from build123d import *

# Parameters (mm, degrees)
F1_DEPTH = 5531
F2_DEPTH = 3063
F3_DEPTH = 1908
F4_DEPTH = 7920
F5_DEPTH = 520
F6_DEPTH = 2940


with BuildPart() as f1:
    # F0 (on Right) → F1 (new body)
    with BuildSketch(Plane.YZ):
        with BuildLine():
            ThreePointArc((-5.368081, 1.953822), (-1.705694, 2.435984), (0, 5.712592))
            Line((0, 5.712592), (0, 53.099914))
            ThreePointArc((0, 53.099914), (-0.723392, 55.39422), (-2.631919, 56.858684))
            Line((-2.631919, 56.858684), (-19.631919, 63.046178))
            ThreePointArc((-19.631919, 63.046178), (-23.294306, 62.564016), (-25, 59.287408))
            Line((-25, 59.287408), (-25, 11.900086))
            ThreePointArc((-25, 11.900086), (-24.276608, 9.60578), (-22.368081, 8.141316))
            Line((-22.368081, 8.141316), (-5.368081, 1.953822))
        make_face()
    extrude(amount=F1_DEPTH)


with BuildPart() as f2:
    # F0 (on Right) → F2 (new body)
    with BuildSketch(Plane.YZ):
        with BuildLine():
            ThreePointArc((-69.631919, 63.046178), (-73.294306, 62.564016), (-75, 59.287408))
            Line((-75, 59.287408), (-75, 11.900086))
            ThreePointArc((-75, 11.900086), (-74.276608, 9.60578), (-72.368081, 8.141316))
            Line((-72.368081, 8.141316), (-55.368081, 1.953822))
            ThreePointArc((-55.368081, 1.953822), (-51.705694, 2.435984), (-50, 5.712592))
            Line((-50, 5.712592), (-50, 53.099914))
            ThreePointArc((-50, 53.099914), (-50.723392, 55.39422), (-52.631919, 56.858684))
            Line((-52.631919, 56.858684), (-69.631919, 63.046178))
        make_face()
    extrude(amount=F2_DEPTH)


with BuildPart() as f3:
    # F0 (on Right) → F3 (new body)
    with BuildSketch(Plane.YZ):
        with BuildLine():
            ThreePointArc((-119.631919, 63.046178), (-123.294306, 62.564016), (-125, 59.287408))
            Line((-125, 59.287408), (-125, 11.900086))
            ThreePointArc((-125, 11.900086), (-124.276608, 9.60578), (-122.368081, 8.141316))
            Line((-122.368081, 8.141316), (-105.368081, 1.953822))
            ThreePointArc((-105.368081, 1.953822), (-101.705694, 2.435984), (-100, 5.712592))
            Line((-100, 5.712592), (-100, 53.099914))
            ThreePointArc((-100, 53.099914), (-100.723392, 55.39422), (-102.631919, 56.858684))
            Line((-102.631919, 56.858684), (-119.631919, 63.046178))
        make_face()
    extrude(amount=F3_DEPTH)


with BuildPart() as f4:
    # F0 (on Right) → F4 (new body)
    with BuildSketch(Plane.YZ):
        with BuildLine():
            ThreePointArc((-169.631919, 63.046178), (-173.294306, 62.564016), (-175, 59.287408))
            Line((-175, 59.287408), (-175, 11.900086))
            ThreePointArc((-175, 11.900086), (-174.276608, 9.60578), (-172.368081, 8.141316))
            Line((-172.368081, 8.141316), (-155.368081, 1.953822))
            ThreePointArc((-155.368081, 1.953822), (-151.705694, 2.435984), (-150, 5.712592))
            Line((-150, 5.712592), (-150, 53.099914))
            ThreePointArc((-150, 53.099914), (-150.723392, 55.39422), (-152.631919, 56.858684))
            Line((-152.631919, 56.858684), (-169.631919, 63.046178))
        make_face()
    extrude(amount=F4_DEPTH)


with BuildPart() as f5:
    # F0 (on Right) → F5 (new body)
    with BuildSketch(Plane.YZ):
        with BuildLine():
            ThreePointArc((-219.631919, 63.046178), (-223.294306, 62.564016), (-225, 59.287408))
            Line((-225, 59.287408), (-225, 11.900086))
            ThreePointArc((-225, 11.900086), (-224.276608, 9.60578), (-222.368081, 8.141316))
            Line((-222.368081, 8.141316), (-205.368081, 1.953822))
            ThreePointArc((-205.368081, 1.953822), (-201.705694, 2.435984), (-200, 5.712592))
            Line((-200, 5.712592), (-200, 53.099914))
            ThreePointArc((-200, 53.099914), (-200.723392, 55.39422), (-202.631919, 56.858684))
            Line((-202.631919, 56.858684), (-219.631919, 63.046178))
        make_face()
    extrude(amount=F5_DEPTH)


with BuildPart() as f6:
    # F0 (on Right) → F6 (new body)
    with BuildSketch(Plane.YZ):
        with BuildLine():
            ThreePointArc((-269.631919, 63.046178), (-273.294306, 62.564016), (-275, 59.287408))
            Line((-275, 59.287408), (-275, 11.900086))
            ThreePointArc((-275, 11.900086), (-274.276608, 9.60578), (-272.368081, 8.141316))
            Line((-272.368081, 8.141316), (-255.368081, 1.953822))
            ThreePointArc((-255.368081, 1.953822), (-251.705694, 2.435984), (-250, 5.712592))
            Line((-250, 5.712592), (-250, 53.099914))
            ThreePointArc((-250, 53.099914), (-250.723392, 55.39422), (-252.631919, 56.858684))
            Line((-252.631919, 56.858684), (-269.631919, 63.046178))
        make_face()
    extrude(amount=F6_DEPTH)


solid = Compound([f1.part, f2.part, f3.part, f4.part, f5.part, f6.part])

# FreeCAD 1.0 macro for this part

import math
import FreeCAD as App
import Part
import Sketcher
Q = App.Units.Quantity

doc = App.newDocument("Part")
params = doc.addObject("Spreadsheet::Sheet", "Params")
for row, (alias, value) in enumerate([
    ("sketch1_radius", "4 mm"),
    ("pad1_length", "5531 mm"),
    ("sketch2_radius", "4 mm"),
    ("pad2_length", "3063 mm"),
    ("sketch3_radius", "4 mm"),
    ("pad3_length", "1908 mm"),
    ("sketch4_radius", "4 mm"),
    ("pad4_length", "7920 mm"),
    ("sketch5_radius", "4 mm"),
    ("pad5_length", "520 mm"),
    ("sketch6_radius", "4 mm"),
    ("pad6_length", "2940 mm"),
], start=1):
    params.set(f"A{row}", alias)
    params.set(f"B{row}", "=" + value)
    params.setAlias(f"B{row}", alias)

body = doc.addObject("PartDesign::Body", "Body")

# Sketch on YZ plane
sketch1 = doc.addObject("Sketcher::SketchObject", "Sketch")
body.addObject(sketch1)
sketch1.AttachmentSupport = (doc.YZ_Plane, [""])
sketch1.MapMode = "FlatFace"
sketch1.addGeometry([
    Part.ArcOfCircle(Part.Circle(App.Vector(-4, 5.7, 0), App.Vector(0, 0, 1), 4), math.radians(-110), math.radians(0)),  # 0
    Part.LineSegment(App.Vector(0, 5.7, 0), App.Vector(0, 53.1, 0)),  # 1
    Part.ArcOfCircle(Part.Circle(App.Vector(-4, 53.1, 0), App.Vector(0, 0, 1), 4), math.radians(0), math.radians(70)),  # 2
    Part.LineSegment(App.Vector(-2.6, 56.9, 0), App.Vector(-19.6, 63, 0)),  # 3
    Part.ArcOfCircle(Part.Circle(App.Vector(-21, 59.3, 0), App.Vector(0, 0, 1), 4), math.radians(70), math.radians(180)),  # 4
    Part.LineSegment(App.Vector(-25, 59.3, 0), App.Vector(-25, 11.9, 0)),  # 5
    Part.ArcOfCircle(Part.Circle(App.Vector(-21, 11.9, 0), App.Vector(0, 0, 1), 4), math.radians(180), math.radians(250)),  # 6
    Part.LineSegment(App.Vector(-22.4, 8.1, 0), App.Vector(-5.4, 2, 0)),  # 7
], False)
sketch1.addConstraint([
    Sketcher.Constraint("Tangent", 0, 2, 1, 1),
    Sketcher.Constraint("Tangent", 1, 2, 2, 1),
    Sketcher.Constraint("Tangent", 2, 2, 3, 1),
    Sketcher.Constraint("Tangent", 3, 2, 4, 1),
    Sketcher.Constraint("Tangent", 4, 2, 5, 1),
    Sketcher.Constraint("Tangent", 5, 2, 6, 1),
    Sketcher.Constraint("Tangent", 6, 2, 7, 1),
    Sketcher.Constraint("Tangent", 7, 2, 0, 1),
    Sketcher.Constraint("Vertical", 1),
    Sketcher.Constraint("Vertical", 5),
    Sketcher.Constraint("Equal", 0, 2),
    Sketcher.Constraint("Equal", 2, 4),
    Sketcher.Constraint("Equal", 4, 6),
    Sketcher.Constraint("PointOnObject", 0, 2, -2),
    Sketcher.Constraint("Parallel", 3, 7),
    Sketcher.Constraint("Radius", 0, Q("4 mm")),
    Sketcher.Constraint("Angle", 3, Q("160 deg")),
    Sketcher.Constraint("DistanceX", 4, 3, -1, 1, Q("21 mm")),
    Sketcher.Constraint("DistanceY", 1, 1, 1, 2, Q("47.387322 mm")),
    Sketcher.Constraint("DistanceY", -1, 1, 0, 3, Q("5.712592 mm")),
])
sketch1.setExpression("Constraints[15]", "Params.sketch1_radius")
pad1 = doc.addObject("PartDesign::Pad", "Pad")
body.addObject(pad1)
pad1.Profile = sketch1
pad1.setExpression("Length", "Params.pad1_length")
body2 = doc.addObject("PartDesign::Body", "Body001")

# Sketch on YZ plane
sketch2 = doc.addObject("Sketcher::SketchObject", "Sketch001")
body2.addObject(sketch2)
sketch2.AttachmentSupport = (doc.getObject("YZ_Plane001"), [""])
sketch2.MapMode = "FlatFace"
sketch2.addGeometry([
    Part.ArcOfCircle(Part.Circle(App.Vector(-71, 59.3, 0), App.Vector(0, 0, 1), 4), math.radians(70), math.radians(180)),  # 0
    Part.LineSegment(App.Vector(-75, 59.3, 0), App.Vector(-75, 11.9, 0)),  # 1
    Part.ArcOfCircle(Part.Circle(App.Vector(-71, 11.9, 0), App.Vector(0, 0, 1), 4), math.radians(180), math.radians(250)),  # 2
    Part.LineSegment(App.Vector(-72.4, 8.1, 0), App.Vector(-55.4, 2, 0)),  # 3
    Part.ArcOfCircle(Part.Circle(App.Vector(-54, 5.7, 0), App.Vector(0, 0, 1), 4), math.radians(-110), math.radians(0)),  # 4
    Part.LineSegment(App.Vector(-50, 5.7, 0), App.Vector(-50, 53.1, 0)),  # 5
    Part.ArcOfCircle(Part.Circle(App.Vector(-54, 53.1, 0), App.Vector(0, 0, 1), 4), math.radians(0), math.radians(70)),  # 6
    Part.LineSegment(App.Vector(-52.6, 56.9, 0), App.Vector(-69.6, 63, 0)),  # 7
], False)
sketch2.addConstraint([
    Sketcher.Constraint("Tangent", 0, 2, 1, 1),
    Sketcher.Constraint("Tangent", 1, 2, 2, 1),
    Sketcher.Constraint("Tangent", 2, 2, 3, 1),
    Sketcher.Constraint("Tangent", 3, 2, 4, 1),
    Sketcher.Constraint("Tangent", 4, 2, 5, 1),
    Sketcher.Constraint("Tangent", 5, 2, 6, 1),
    Sketcher.Constraint("Tangent", 6, 2, 7, 1),
    Sketcher.Constraint("Tangent", 7, 2, 0, 1),
    Sketcher.Constraint("Vertical", 1),
    Sketcher.Constraint("Vertical", 5),
    Sketcher.Constraint("Equal", 0, 2),
    Sketcher.Constraint("Equal", 2, 4),
    Sketcher.Constraint("Equal", 4, 6),
    Sketcher.Constraint("Parallel", 3, 7),
    Sketcher.Constraint("Radius", 0, Q("4 mm")),
    Sketcher.Constraint("Angle", 3, Q("-20 deg")),
    Sketcher.Constraint("DistanceX", 0, 3, -1, 1, Q("71 mm")),
    Sketcher.Constraint("DistanceX", 4, 3, -1, 1, Q("54 mm")),
    Sketcher.Constraint("DistanceY", 1, 2, 1, 1, Q("47.387322 mm")),
    Sketcher.Constraint("DistanceY", -1, 1, 0, 3, Q("59.287408 mm")),
])
sketch2.setExpression("Constraints[14]", "Params.sketch2_radius")
pad2 = doc.addObject("PartDesign::Pad", "Pad001")
body2.addObject(pad2)
pad2.Profile = sketch2
pad2.setExpression("Length", "Params.pad2_length")
body3 = doc.addObject("PartDesign::Body", "Body002")

# Sketch on YZ plane
sketch3 = doc.addObject("Sketcher::SketchObject", "Sketch002")
body3.addObject(sketch3)
sketch3.AttachmentSupport = (doc.getObject("YZ_Plane002"), [""])
sketch3.MapMode = "FlatFace"
sketch3.addGeometry([
    Part.ArcOfCircle(Part.Circle(App.Vector(-121, 59.3, 0), App.Vector(0, 0, 1), 4), math.radians(70), math.radians(180)),  # 0
    Part.LineSegment(App.Vector(-125, 59.3, 0), App.Vector(-125, 11.9, 0)),  # 1
    Part.ArcOfCircle(Part.Circle(App.Vector(-121, 11.9, 0), App.Vector(0, 0, 1), 4), math.radians(180), math.radians(250)),  # 2
    Part.LineSegment(App.Vector(-122.4, 8.1, 0), App.Vector(-105.4, 2, 0)),  # 3
    Part.ArcOfCircle(Part.Circle(App.Vector(-104, 5.7, 0), App.Vector(0, 0, 1), 4), math.radians(-110), math.radians(0)),  # 4
    Part.LineSegment(App.Vector(-100, 5.7, 0), App.Vector(-100, 53.1, 0)),  # 5
    Part.ArcOfCircle(Part.Circle(App.Vector(-104, 53.1, 0), App.Vector(0, 0, 1), 4), math.radians(0), math.radians(70)),  # 6
    Part.LineSegment(App.Vector(-102.6, 56.9, 0), App.Vector(-119.6, 63, 0)),  # 7
], False)
sketch3.addConstraint([
    Sketcher.Constraint("Tangent", 0, 2, 1, 1),
    Sketcher.Constraint("Tangent", 1, 2, 2, 1),
    Sketcher.Constraint("Tangent", 2, 2, 3, 1),
    Sketcher.Constraint("Tangent", 3, 2, 4, 1),
    Sketcher.Constraint("Tangent", 4, 2, 5, 1),
    Sketcher.Constraint("Tangent", 5, 2, 6, 1),
    Sketcher.Constraint("Tangent", 6, 2, 7, 1),
    Sketcher.Constraint("Tangent", 7, 2, 0, 1),
    Sketcher.Constraint("Vertical", 1),
    Sketcher.Constraint("Vertical", 5),
    Sketcher.Constraint("Equal", 0, 2),
    Sketcher.Constraint("Equal", 2, 4),
    Sketcher.Constraint("Equal", 4, 6),
    Sketcher.Constraint("Parallel", 3, 7),
    Sketcher.Constraint("Radius", 0, Q("4 mm")),
    Sketcher.Constraint("Angle", 3, Q("-20 deg")),
    Sketcher.Constraint("DistanceX", 0, 3, -1, 1, Q("121 mm")),
    Sketcher.Constraint("DistanceX", 4, 3, -1, 1, Q("104 mm")),
    Sketcher.Constraint("DistanceY", 1, 2, 1, 1, Q("47.387322 mm")),
    Sketcher.Constraint("DistanceY", -1, 1, 0, 3, Q("59.287408 mm")),
])
sketch3.setExpression("Constraints[14]", "Params.sketch3_radius")
pad3 = doc.addObject("PartDesign::Pad", "Pad002")
body3.addObject(pad3)
pad3.Profile = sketch3
pad3.setExpression("Length", "Params.pad3_length")
body4 = doc.addObject("PartDesign::Body", "Body003")

# Sketch on YZ plane
sketch4 = doc.addObject("Sketcher::SketchObject", "Sketch003")
body4.addObject(sketch4)
sketch4.AttachmentSupport = (doc.getObject("YZ_Plane003"), [""])
sketch4.MapMode = "FlatFace"
sketch4.addGeometry([
    Part.ArcOfCircle(Part.Circle(App.Vector(-171, 59.3, 0), App.Vector(0, 0, 1), 4), math.radians(70), math.radians(180)),  # 0
    Part.LineSegment(App.Vector(-175, 59.3, 0), App.Vector(-175, 11.9, 0)),  # 1
    Part.ArcOfCircle(Part.Circle(App.Vector(-171, 11.9, 0), App.Vector(0, 0, 1), 4), math.radians(180), math.radians(250)),  # 2
    Part.LineSegment(App.Vector(-172.4, 8.1, 0), App.Vector(-155.4, 2, 0)),  # 3
    Part.ArcOfCircle(Part.Circle(App.Vector(-154, 5.7, 0), App.Vector(0, 0, 1), 4), math.radians(-110), math.radians(0)),  # 4
    Part.LineSegment(App.Vector(-150, 5.7, 0), App.Vector(-150, 53.1, 0)),  # 5
    Part.ArcOfCircle(Part.Circle(App.Vector(-154, 53.1, 0), App.Vector(0, 0, 1), 4), math.radians(0), math.radians(70)),  # 6
    Part.LineSegment(App.Vector(-152.6, 56.9, 0), App.Vector(-169.6, 63, 0)),  # 7
], False)
sketch4.addConstraint([
    Sketcher.Constraint("Tangent", 0, 2, 1, 1),
    Sketcher.Constraint("Tangent", 1, 2, 2, 1),
    Sketcher.Constraint("Tangent", 2, 2, 3, 1),
    Sketcher.Constraint("Tangent", 3, 2, 4, 1),
    Sketcher.Constraint("Tangent", 4, 2, 5, 1),
    Sketcher.Constraint("Tangent", 5, 2, 6, 1),
    Sketcher.Constraint("Tangent", 6, 2, 7, 1),
    Sketcher.Constraint("Tangent", 7, 2, 0, 1),
    Sketcher.Constraint("Vertical", 1),
    Sketcher.Constraint("Vertical", 5),
    Sketcher.Constraint("Equal", 0, 2),
    Sketcher.Constraint("Equal", 2, 4),
    Sketcher.Constraint("Equal", 4, 6),
    Sketcher.Constraint("Parallel", 3, 7),
    Sketcher.Constraint("Radius", 0, Q("4 mm")),
    Sketcher.Constraint("Angle", 3, Q("-20 deg")),
    Sketcher.Constraint("DistanceX", 0, 3, -1, 1, Q("171 mm")),
    Sketcher.Constraint("DistanceX", 4, 3, -1, 1, Q("154 mm")),
    Sketcher.Constraint("DistanceY", 1, 2, 1, 1, Q("47.387322 mm")),
    Sketcher.Constraint("DistanceY", -1, 1, 0, 3, Q("59.287408 mm")),
])
sketch4.setExpression("Constraints[14]", "Params.sketch4_radius")
pad4 = doc.addObject("PartDesign::Pad", "Pad003")
body4.addObject(pad4)
pad4.Profile = sketch4
pad4.setExpression("Length", "Params.pad4_length")
body5 = doc.addObject("PartDesign::Body", "Body004")

# Sketch on YZ plane
sketch5 = doc.addObject("Sketcher::SketchObject", "Sketch004")
body5.addObject(sketch5)
sketch5.AttachmentSupport = (doc.getObject("YZ_Plane004"), [""])
sketch5.MapMode = "FlatFace"
sketch5.addGeometry([
    Part.ArcOfCircle(Part.Circle(App.Vector(-221, 59.3, 0), App.Vector(0, 0, 1), 4), math.radians(70), math.radians(180)),  # 0
    Part.LineSegment(App.Vector(-225, 59.3, 0), App.Vector(-225, 11.9, 0)),  # 1
    Part.ArcOfCircle(Part.Circle(App.Vector(-221, 11.9, 0), App.Vector(0, 0, 1), 4), math.radians(180), math.radians(250)),  # 2
    Part.LineSegment(App.Vector(-222.4, 8.1, 0), App.Vector(-205.4, 2, 0)),  # 3
    Part.ArcOfCircle(Part.Circle(App.Vector(-204, 5.7, 0), App.Vector(0, 0, 1), 4), math.radians(-110), math.radians(0)),  # 4
    Part.LineSegment(App.Vector(-200, 5.7, 0), App.Vector(-200, 53.1, 0)),  # 5
    Part.ArcOfCircle(Part.Circle(App.Vector(-204, 53.1, 0), App.Vector(0, 0, 1), 4), math.radians(0), math.radians(70)),  # 6
    Part.LineSegment(App.Vector(-202.6, 56.9, 0), App.Vector(-219.6, 63, 0)),  # 7
], False)
sketch5.addConstraint([
    Sketcher.Constraint("Tangent", 0, 2, 1, 1),
    Sketcher.Constraint("Tangent", 1, 2, 2, 1),
    Sketcher.Constraint("Tangent", 2, 2, 3, 1),
    Sketcher.Constraint("Tangent", 3, 2, 4, 1),
    Sketcher.Constraint("Tangent", 4, 2, 5, 1),
    Sketcher.Constraint("Tangent", 5, 2, 6, 1),
    Sketcher.Constraint("Tangent", 6, 2, 7, 1),
    Sketcher.Constraint("Tangent", 7, 2, 0, 1),
    Sketcher.Constraint("Vertical", 1),
    Sketcher.Constraint("Vertical", 5),
    Sketcher.Constraint("Equal", 0, 2),
    Sketcher.Constraint("Equal", 2, 4),
    Sketcher.Constraint("Equal", 4, 6),
    Sketcher.Constraint("Parallel", 3, 7),
    Sketcher.Constraint("Radius", 0, Q("4 mm")),
    Sketcher.Constraint("Angle", 3, Q("-20 deg")),
    Sketcher.Constraint("DistanceX", 0, 3, -1, 1, Q("221 mm")),
    Sketcher.Constraint("DistanceX", 4, 3, -1, 1, Q("204 mm")),
    Sketcher.Constraint("DistanceY", 1, 2, 1, 1, Q("47.387322 mm")),
    Sketcher.Constraint("DistanceY", -1, 1, 0, 3, Q("59.287408 mm")),
])
sketch5.setExpression("Constraints[14]", "Params.sketch5_radius")
pad5 = doc.addObject("PartDesign::Pad", "Pad004")
body5.addObject(pad5)
pad5.Profile = sketch5
pad5.setExpression("Length", "Params.pad5_length")
body6 = doc.addObject("PartDesign::Body", "Body005")

# Sketch on YZ plane
sketch6 = doc.addObject("Sketcher::SketchObject", "Sketch005")
body6.addObject(sketch6)
sketch6.AttachmentSupport = (doc.getObject("YZ_Plane005"), [""])
sketch6.MapMode = "FlatFace"
sketch6.addGeometry([
    Part.ArcOfCircle(Part.Circle(App.Vector(-271, 59.3, 0), App.Vector(0, 0, 1), 4), math.radians(70), math.radians(180)),  # 0
    Part.LineSegment(App.Vector(-275, 59.3, 0), App.Vector(-275, 11.9, 0)),  # 1
    Part.ArcOfCircle(Part.Circle(App.Vector(-271, 11.9, 0), App.Vector(0, 0, 1), 4), math.radians(180), math.radians(250)),  # 2
    Part.LineSegment(App.Vector(-272.4, 8.1, 0), App.Vector(-255.4, 2, 0)),  # 3
    Part.ArcOfCircle(Part.Circle(App.Vector(-254, 5.7, 0), App.Vector(0, 0, 1), 4), math.radians(-110), math.radians(0)),  # 4
    Part.LineSegment(App.Vector(-250, 5.7, 0), App.Vector(-250, 53.1, 0)),  # 5
    Part.ArcOfCircle(Part.Circle(App.Vector(-254, 53.1, 0), App.Vector(0, 0, 1), 4), math.radians(0), math.radians(70)),  # 6
    Part.LineSegment(App.Vector(-252.6, 56.9, 0), App.Vector(-269.6, 63, 0)),  # 7
], False)
sketch6.addConstraint([
    Sketcher.Constraint("Tangent", 0, 2, 1, 1),
    Sketcher.Constraint("Tangent", 1, 2, 2, 1),
    Sketcher.Constraint("Tangent", 2, 2, 3, 1),
    Sketcher.Constraint("Tangent", 3, 2, 4, 1),
    Sketcher.Constraint("Tangent", 4, 2, 5, 1),
    Sketcher.Constraint("Tangent", 5, 2, 6, 1),
    Sketcher.Constraint("Tangent", 6, 2, 7, 1),
    Sketcher.Constraint("Tangent", 7, 2, 0, 1),
    Sketcher.Constraint("Vertical", 1),
    Sketcher.Constraint("Vertical", 5),
    Sketcher.Constraint("Equal", 0, 2),
    Sketcher.Constraint("Equal", 2, 4),
    Sketcher.Constraint("Equal", 4, 6),
    Sketcher.Constraint("Parallel", 3, 7),
    Sketcher.Constraint("Radius", 0, Q("4 mm")),
    Sketcher.Constraint("Angle", 3, Q("-20 deg")),
    Sketcher.Constraint("DistanceX", 0, 3, -1, 1, Q("271 mm")),
    Sketcher.Constraint("DistanceX", 4, 3, -1, 1, Q("254 mm")),
    Sketcher.Constraint("DistanceY", 1, 2, 1, 1, Q("47.387322 mm")),
    Sketcher.Constraint("DistanceY", -1, 1, 0, 3, Q("59.287408 mm")),
])
sketch6.setExpression("Constraints[14]", "Params.sketch6_radius")
pad6 = doc.addObject("PartDesign::Pad", "Pad005")
body6.addObject(pad6)
pad6.Profile = sketch6
pad6.setExpression("Length", "Params.pad6_length")

doc.recompute()
